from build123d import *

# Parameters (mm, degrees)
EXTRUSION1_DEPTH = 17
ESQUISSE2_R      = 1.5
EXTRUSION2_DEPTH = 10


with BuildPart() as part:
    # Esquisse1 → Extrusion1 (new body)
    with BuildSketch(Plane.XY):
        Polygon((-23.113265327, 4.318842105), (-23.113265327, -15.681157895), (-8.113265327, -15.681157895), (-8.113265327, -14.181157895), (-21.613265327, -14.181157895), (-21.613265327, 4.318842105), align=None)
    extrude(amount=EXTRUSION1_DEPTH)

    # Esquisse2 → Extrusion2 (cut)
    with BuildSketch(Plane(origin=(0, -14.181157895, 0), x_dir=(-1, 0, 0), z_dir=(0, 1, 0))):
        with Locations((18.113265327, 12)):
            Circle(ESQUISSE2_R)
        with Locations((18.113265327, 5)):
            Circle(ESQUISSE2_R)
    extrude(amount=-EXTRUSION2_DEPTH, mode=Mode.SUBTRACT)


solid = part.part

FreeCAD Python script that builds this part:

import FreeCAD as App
import Part
import Sketcher

V = App.Vector


def add_polygon(sketch, points):
    """Adds a closed chain of lines whose ends are joined by coincident constraints."""
    first, n = sketch.GeometryCount, len(points)
    for a, b in zip(points, points[1:] + points[:1]):
        sketch.addGeometry(Part.LineSegment(App.Vector(*a, 0), App.Vector(*b, 0)), False)
    for i in range(n):
        sketch.addConstraint(Sketcher.Constraint("Coincident", first + i, 2, first + (i + 1) % n, 1))

doc = App.newDocument("Part")
body = doc.addObject("PartDesign::Body", "Body")

sketch1 = body.newObject("Sketcher::SketchObject", "Sketch")
sketch1.AttachmentSupport = (doc.getObject("XY_Plane"), [""])
sketch1.MapMode = "FlatFace"
add_polygon(sketch1, [(-23.1, 4.3), (-23.1, -15.7), (-8.1, -15.7), (-8.1, -14.2), (-21.6, -14.2), (-21.6, 4.3)])
sketch1.addConstraint([
    Sketcher.Constraint("Vertical", 0),
    Sketcher.Constraint("Horizontal", 1),
    Sketcher.Constraint("Vertical", 2),
    Sketcher.Constraint("Horizontal", 3),
    Sketcher.Constraint("Vertical", 4),
    Sketcher.Constraint("Horizontal", 5),
    Sketcher.Constraint("Equal", 5, 2),
    Sketcher.Constraint("DistanceX", 1, 1, 1, 2, 15.0),
    Sketcher.Constraint("DistanceY", 0, 2, 0, 1, 20.0),
    Sketcher.Constraint("DistanceX", 3, 2, 3, 1, 13.5),
    Sketcher.Constraint("DistanceX", 0, 2, -1, 1, 23.113265),
    Sketcher.Constraint("DistanceY", 0, 2, -1, 1, 15.681158),
])
pad1 = body.newObject("PartDesign::Pad", "Pad")
pad1.Profile = sketch1
pad1.Length = 17

sketch2 = body.newObject("Sketcher::SketchObject", "Sketch001")
sketch2.AttachmentSupport = (doc.getObject("XZ_Plane"), [""])
sketch2.MapMode = "FlatFace"
sketch2.AttachmentOffset = App.Placement(V(0, 0, 14.181158), App.Rotation())
sketch2.addGeometry([
    Part.Circle(V(-18.1, 12, 0), V(0, 0, 1), 1.5),
    Part.Circle(V(-18.1, 5, 0), V(0, 0, 1), 1.5),
], False)
sketch2.addConstraint([
    Sketcher.Constraint("Equal", 0, 1),
    Sketcher.Constraint("Vertical", 0, 3, 1, 3),
    Sketcher.Constraint("Diameter", 0, 3.0),
    Sketcher.Constraint("DistanceY", -1, 1, 0, 3, 12.0),
    Sketcher.Constraint("DistanceY", -1, 1, 1, 3, 5.0),
    Sketcher.Constraint("DistanceX", 0, 3, -1, 1, 18.113265),
])
pocket1 = body.newObject("PartDesign::Pocket", "Pocket")
pocket1.Profile = sketch2
pocket1.Length = 10
pocket1.Reversed = True

doc.recompute()
